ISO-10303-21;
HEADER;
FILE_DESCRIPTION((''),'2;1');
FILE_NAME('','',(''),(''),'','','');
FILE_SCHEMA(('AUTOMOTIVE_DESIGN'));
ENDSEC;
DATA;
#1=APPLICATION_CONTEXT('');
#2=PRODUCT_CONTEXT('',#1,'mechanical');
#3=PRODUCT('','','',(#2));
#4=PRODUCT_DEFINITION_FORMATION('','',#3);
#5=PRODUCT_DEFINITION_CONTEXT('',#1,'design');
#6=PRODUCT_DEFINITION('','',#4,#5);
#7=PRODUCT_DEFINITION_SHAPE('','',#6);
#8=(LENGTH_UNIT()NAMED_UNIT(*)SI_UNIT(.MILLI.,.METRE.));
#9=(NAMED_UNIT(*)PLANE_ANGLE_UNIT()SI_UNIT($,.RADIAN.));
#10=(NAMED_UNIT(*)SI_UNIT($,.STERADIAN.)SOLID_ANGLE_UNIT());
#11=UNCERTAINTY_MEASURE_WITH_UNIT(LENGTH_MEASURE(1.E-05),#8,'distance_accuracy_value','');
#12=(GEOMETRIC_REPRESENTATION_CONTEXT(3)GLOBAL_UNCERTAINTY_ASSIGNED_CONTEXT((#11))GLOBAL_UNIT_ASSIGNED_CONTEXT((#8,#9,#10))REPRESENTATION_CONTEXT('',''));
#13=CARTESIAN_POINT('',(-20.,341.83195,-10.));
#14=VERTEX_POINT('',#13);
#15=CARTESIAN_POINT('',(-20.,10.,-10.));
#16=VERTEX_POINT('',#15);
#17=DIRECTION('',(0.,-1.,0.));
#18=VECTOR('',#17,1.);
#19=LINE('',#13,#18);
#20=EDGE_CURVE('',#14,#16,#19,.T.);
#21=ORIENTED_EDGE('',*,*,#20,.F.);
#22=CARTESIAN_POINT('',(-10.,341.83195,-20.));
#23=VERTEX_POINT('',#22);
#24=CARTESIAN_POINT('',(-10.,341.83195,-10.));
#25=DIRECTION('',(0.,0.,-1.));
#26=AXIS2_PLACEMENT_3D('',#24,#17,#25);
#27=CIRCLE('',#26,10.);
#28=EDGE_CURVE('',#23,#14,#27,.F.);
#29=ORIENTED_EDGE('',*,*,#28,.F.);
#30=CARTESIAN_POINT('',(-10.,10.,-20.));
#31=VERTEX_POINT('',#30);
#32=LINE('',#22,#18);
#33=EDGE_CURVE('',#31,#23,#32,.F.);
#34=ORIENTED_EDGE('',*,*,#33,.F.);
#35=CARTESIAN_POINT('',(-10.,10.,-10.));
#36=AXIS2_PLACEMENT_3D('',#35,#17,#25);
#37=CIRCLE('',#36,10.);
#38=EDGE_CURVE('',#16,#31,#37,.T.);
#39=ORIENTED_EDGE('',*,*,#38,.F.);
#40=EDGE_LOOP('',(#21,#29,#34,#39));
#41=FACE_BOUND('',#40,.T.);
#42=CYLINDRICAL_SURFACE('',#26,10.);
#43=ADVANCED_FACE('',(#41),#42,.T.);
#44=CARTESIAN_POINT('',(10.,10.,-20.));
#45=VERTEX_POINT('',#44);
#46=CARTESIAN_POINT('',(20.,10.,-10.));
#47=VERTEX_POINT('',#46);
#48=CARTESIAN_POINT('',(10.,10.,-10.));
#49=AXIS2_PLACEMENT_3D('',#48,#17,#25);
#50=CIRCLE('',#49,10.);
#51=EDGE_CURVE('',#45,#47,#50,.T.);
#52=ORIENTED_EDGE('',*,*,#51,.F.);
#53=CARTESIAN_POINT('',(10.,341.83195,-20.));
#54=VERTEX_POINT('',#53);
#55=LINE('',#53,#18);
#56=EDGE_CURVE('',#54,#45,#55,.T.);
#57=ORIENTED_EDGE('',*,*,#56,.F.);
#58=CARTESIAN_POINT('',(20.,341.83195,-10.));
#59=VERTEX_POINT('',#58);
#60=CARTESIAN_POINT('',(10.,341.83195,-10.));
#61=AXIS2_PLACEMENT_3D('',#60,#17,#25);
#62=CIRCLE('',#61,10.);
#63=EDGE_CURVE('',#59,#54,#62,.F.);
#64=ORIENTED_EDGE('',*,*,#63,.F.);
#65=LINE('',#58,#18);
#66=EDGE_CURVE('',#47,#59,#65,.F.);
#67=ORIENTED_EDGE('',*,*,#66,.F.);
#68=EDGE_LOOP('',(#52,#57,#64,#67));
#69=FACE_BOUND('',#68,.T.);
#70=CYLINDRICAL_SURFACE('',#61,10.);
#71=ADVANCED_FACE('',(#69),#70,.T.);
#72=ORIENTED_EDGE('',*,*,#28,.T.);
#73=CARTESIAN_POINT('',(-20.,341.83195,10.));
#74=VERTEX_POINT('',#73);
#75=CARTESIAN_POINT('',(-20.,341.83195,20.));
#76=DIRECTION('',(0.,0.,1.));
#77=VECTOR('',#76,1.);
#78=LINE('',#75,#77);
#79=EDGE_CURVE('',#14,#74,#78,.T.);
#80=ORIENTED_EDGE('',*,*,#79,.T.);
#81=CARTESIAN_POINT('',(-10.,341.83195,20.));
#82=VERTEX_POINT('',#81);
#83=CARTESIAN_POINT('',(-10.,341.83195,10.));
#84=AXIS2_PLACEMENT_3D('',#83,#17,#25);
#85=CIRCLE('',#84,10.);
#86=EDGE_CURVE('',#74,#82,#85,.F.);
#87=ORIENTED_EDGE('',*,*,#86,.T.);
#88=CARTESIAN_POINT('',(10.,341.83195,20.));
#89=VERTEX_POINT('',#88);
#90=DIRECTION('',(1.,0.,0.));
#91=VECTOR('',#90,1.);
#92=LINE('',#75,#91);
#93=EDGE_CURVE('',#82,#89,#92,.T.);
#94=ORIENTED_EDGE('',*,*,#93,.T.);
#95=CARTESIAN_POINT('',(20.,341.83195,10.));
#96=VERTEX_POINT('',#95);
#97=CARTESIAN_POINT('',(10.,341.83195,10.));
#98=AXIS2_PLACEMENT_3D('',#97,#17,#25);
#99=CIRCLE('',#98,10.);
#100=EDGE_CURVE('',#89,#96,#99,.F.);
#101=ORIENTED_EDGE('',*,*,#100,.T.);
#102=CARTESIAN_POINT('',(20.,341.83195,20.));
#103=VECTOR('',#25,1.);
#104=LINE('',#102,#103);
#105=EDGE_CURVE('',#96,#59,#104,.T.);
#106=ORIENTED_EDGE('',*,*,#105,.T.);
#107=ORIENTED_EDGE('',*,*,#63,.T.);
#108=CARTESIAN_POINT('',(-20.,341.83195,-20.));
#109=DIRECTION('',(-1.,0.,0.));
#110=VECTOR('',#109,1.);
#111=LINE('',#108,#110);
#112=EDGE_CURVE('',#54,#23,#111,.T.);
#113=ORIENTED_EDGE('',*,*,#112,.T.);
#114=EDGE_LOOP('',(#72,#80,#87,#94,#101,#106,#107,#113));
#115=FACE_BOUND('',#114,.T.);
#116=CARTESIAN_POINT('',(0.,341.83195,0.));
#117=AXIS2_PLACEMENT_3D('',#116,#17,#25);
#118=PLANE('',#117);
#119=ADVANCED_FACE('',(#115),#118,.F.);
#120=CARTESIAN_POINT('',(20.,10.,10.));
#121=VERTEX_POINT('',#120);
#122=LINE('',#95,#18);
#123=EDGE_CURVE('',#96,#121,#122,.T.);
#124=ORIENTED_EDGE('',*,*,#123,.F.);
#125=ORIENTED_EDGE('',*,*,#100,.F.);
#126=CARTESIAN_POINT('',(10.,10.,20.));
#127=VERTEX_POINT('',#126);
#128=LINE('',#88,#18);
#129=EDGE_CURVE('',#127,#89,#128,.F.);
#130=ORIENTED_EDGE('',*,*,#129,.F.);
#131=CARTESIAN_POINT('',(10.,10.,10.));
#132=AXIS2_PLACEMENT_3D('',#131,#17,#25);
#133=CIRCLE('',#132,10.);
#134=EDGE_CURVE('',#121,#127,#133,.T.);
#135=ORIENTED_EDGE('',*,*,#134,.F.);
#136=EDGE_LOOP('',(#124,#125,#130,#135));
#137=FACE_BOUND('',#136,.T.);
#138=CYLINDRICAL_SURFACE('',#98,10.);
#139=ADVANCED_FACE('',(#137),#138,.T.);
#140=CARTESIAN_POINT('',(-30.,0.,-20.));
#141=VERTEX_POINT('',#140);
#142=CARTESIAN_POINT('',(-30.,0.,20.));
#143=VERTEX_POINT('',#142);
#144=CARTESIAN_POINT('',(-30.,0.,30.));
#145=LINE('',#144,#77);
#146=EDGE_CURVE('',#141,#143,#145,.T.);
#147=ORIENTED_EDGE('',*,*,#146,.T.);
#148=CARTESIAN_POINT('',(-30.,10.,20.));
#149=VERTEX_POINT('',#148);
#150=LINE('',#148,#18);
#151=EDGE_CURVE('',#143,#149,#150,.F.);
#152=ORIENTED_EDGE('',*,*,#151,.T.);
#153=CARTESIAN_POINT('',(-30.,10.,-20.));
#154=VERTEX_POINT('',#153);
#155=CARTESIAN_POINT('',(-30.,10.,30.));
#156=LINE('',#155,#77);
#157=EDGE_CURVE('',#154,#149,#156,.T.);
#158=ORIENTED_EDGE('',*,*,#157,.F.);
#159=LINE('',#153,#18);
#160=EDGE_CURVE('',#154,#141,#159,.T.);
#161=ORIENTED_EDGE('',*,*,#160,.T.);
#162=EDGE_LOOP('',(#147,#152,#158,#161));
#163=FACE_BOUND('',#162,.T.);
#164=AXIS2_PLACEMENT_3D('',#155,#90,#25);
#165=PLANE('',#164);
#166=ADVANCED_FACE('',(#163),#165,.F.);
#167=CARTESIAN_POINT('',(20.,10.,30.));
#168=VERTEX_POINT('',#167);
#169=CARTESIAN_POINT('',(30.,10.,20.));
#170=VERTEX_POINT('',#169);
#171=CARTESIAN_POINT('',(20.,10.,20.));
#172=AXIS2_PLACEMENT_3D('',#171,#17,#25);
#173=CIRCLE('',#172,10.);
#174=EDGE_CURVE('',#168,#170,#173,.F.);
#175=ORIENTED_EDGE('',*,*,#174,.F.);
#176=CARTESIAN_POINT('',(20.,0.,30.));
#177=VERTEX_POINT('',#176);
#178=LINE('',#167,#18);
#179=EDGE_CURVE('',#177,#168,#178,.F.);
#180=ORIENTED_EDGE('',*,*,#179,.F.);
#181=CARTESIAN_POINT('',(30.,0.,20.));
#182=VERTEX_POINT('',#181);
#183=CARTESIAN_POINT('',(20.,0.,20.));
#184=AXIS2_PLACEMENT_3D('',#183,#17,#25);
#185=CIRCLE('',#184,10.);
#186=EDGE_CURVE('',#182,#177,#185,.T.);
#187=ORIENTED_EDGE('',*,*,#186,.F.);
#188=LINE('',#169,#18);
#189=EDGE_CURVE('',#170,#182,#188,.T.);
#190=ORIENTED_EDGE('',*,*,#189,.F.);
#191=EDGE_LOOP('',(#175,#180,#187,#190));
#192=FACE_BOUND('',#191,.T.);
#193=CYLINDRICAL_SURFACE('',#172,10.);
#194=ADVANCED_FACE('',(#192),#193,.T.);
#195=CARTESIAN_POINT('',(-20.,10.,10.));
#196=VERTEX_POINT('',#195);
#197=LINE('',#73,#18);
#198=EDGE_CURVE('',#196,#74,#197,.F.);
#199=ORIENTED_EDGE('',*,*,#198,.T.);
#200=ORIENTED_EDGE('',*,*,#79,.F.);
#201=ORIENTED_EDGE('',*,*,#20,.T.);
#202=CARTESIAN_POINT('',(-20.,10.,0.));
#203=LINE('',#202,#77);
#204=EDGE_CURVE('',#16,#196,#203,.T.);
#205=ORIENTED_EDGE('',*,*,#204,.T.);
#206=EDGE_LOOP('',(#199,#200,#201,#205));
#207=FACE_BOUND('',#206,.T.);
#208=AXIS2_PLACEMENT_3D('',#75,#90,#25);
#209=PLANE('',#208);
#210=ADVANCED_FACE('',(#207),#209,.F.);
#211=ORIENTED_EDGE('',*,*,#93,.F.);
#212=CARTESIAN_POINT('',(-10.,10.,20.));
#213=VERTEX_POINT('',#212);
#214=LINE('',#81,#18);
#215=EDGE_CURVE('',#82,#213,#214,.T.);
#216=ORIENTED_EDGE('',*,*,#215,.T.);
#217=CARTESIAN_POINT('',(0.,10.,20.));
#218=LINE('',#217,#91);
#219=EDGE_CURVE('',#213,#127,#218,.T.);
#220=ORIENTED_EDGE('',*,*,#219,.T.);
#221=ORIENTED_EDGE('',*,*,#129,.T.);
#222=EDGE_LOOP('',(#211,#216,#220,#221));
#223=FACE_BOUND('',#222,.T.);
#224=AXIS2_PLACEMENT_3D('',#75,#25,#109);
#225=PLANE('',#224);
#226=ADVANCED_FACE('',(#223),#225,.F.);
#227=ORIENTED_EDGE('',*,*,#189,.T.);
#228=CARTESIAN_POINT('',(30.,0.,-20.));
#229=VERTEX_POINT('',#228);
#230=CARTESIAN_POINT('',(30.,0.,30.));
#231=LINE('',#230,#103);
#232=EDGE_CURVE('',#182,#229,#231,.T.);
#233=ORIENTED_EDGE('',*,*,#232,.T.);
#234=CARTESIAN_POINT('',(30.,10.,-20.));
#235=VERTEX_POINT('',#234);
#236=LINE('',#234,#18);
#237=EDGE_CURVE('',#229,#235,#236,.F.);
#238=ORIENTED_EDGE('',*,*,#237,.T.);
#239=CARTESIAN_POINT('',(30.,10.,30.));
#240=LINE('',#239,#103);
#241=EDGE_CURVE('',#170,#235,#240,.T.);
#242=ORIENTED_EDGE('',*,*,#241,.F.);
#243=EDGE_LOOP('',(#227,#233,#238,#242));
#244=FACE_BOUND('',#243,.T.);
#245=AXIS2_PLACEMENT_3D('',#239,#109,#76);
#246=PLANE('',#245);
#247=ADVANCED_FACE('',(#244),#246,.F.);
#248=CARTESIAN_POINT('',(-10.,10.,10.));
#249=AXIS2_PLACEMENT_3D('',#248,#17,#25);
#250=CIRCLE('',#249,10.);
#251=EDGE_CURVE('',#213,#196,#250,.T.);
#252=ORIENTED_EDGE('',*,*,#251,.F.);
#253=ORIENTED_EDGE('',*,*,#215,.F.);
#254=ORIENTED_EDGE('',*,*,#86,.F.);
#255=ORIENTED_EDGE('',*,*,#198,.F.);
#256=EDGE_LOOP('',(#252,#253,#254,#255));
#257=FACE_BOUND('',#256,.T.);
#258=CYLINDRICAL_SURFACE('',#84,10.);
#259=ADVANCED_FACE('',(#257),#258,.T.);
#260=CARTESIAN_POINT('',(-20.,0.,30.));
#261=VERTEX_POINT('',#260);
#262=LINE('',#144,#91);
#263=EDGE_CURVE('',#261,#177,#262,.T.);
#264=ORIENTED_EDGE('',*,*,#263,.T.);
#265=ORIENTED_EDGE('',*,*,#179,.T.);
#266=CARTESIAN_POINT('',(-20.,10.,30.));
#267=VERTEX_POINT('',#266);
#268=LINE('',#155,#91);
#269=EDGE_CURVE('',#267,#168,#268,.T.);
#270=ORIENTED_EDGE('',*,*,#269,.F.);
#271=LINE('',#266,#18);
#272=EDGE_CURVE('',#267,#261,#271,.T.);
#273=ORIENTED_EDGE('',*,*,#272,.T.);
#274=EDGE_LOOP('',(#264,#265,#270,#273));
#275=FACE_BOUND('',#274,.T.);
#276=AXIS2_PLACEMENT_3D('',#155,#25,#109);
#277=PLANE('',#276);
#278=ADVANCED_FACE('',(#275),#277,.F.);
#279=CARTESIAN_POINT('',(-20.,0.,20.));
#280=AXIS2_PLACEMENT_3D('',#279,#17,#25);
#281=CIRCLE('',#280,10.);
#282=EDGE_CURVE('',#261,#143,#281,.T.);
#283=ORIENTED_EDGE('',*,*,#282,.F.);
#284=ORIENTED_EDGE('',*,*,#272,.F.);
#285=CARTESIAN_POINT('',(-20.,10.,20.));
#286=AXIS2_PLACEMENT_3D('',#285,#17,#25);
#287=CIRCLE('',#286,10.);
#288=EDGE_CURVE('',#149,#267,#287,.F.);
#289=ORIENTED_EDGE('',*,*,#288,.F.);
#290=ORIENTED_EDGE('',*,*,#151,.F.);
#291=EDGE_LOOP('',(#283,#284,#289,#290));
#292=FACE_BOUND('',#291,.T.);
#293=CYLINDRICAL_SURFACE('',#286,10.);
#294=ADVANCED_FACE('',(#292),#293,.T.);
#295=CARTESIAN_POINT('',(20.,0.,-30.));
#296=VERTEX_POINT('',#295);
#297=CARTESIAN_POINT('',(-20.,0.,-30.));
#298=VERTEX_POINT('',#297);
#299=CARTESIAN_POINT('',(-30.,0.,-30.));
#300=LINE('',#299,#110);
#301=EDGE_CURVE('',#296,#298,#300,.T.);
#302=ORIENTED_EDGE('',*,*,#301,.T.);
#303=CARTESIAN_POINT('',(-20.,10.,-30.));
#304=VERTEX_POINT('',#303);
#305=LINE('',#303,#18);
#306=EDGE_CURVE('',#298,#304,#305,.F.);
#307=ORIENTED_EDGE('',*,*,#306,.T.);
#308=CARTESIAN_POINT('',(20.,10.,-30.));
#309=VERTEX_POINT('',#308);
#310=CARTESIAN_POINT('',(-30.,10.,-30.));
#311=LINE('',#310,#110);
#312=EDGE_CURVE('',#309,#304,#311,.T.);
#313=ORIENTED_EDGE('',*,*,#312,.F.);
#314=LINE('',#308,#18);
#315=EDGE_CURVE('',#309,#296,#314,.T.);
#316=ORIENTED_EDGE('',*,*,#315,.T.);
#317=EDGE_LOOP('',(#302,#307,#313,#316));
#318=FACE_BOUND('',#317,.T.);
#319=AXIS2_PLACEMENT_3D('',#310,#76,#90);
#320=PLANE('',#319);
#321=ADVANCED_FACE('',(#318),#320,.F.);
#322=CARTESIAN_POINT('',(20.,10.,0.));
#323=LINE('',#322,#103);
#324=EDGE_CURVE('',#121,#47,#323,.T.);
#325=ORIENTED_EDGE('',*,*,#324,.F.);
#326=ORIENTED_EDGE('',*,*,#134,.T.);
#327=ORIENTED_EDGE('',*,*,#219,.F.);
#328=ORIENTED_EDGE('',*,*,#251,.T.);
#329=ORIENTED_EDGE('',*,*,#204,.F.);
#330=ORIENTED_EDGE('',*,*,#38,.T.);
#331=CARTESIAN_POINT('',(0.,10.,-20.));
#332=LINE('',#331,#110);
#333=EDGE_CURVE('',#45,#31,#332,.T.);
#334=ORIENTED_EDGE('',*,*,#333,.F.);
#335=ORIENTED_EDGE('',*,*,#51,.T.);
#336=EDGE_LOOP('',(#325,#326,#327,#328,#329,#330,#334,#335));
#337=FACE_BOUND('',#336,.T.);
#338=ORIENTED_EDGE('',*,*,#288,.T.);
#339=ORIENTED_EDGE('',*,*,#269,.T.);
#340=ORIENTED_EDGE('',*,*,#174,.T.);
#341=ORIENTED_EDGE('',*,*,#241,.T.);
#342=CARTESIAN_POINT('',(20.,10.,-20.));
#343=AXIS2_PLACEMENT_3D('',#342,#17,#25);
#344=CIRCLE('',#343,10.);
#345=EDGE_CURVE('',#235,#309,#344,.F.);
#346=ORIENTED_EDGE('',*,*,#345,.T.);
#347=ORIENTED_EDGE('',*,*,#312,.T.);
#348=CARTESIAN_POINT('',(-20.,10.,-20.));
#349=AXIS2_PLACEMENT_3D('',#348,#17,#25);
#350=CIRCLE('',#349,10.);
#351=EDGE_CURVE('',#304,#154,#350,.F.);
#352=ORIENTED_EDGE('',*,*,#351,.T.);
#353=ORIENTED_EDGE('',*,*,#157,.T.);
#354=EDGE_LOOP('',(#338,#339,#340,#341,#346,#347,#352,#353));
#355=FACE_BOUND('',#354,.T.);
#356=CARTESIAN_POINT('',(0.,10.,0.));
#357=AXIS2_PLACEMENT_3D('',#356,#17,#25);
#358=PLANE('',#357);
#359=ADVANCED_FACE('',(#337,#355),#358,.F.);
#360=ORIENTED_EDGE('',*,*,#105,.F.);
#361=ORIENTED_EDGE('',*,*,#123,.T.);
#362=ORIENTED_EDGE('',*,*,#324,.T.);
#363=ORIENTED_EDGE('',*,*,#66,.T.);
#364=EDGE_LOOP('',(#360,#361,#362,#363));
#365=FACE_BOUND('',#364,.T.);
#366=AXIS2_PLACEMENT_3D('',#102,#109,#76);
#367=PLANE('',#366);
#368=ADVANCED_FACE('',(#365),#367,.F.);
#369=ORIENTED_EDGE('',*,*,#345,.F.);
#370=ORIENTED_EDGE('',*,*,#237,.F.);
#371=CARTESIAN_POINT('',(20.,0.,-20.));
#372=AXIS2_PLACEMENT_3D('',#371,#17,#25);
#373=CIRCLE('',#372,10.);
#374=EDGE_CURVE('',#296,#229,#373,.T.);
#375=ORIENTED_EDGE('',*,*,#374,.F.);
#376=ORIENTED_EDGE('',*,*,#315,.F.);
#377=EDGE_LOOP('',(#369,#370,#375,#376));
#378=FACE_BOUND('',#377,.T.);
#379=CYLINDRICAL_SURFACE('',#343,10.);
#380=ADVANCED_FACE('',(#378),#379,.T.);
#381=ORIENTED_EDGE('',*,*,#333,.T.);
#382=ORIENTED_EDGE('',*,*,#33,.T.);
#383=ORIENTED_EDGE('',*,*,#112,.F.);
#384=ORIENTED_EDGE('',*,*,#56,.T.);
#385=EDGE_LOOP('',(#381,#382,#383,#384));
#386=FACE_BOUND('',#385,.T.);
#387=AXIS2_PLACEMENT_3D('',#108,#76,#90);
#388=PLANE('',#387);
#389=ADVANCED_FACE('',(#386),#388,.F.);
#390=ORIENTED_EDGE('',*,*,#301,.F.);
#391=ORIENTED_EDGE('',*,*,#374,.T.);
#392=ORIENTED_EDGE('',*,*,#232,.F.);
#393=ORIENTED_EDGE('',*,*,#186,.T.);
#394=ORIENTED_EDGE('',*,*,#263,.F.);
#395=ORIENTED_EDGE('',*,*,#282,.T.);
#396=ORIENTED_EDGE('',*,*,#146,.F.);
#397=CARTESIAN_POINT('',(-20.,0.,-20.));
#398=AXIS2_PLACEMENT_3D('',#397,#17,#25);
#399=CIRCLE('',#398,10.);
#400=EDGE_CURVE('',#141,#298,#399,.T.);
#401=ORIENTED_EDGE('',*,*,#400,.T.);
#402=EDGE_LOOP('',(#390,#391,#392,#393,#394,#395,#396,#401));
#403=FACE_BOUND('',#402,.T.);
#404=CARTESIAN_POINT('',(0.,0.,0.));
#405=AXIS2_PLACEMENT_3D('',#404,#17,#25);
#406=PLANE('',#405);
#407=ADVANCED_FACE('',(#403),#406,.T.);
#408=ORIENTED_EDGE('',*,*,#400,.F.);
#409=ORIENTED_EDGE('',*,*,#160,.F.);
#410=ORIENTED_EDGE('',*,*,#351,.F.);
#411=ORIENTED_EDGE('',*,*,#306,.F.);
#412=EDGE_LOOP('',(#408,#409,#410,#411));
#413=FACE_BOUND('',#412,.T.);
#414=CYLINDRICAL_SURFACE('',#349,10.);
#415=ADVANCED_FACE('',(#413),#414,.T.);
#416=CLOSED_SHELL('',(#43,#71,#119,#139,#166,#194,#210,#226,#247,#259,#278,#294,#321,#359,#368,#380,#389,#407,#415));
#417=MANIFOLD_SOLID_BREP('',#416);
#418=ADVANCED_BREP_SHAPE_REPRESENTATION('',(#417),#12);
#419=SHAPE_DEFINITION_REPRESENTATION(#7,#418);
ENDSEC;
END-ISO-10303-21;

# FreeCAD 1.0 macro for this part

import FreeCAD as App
import Part
import Sketcher

V = App.Vector


def edges_at(feature, points):
    """Names of the edges that pass closest to the given points."""
    edges = feature.Shape.Edges
    near = lambda p: min(range(len(edges)), key=lambda i: edges[i].distToShape(Part.Vertex(*p))[0])
    return sorted({f"Edge{near(p) + 1}" for p in points})


def add_polygon(sketch, points):
    """Adds a closed chain of lines whose ends are joined by coincident constraints."""
    first, n = sketch.GeometryCount, len(points)
    for a, b in zip(points, points[1:] + points[:1]):
        sketch.addGeometry(Part.LineSegment(App.Vector(*a, 0), App.Vector(*b, 0)), False)
    for i in range(n):
        sketch.addConstraint(Sketcher.Constraint("Coincident", first + i, 2, first + (i + 1) % n, 1))

doc = App.newDocument("Part")
body = doc.addObject("PartDesign::Body", "Body")

# Sketch on XZ plane
sketch1 = doc.addObject("Sketcher::SketchObject", "Sketch")
body.addObject(sketch1)
sketch1.AttachmentSupport = (doc.XZ_Plane, [""])
sketch1.MapMode = "FlatFace"
add_polygon(sketch1, [(-30, -30), (-30, 30), (30, 30), (30, -30)])  # lines 0-3
sketch1.addConstraint([
    Sketcher.Constraint("Vertical", 0),
    Sketcher.Constraint("Horizontal", 1),
    Sketcher.Constraint("Vertical", 2),
    Sketcher.Constraint("Horizontal", 3),
    Sketcher.Constraint("Symmetric", 0, 2, 2, 2, -1, 1),
    Sketcher.Constraint("Equal", 3, 0),
    Sketcher.Constraint("DistanceX", 1, 1, 1, 2, 60.0),
])
pad1 = doc.addObject("PartDesign::Pad", "Pad")
body.addObject(pad1)
pad1.Profile = sketch1
pad1.Length = 10
pad1.Reversed = True

# Sketch on XZ plane
sketch2 = doc.addObject("Sketcher::SketchObject", "Sketch001")
body.addObject(sketch2)
sketch2.AttachmentSupport = (doc.XZ_Plane, [""])
sketch2.MapMode = "FlatFace"
add_polygon(sketch2, [(-20, -20), (-20, 20), (20, 20), (20, -20)])  # lines 0-3
sketch2.addConstraint([
    Sketcher.Constraint("Vertical", 0),
    Sketcher.Constraint("Horizontal", 1),
    Sketcher.Constraint("Vertical", 2),
    Sketcher.Constraint("Horizontal", 3),
    Sketcher.Constraint("Symmetric", 0, 2, 2, 2, -1, 1),
    Sketcher.Constraint("Equal", 3, 0),
    Sketcher.Constraint("DistanceX", 1, 1, 1, 2, 40.0),
])
pad2 = doc.addObject("PartDesign::Pad", "Pad001")
body.addObject(pad2)
pad2.Profile = sketch2
pad2.Length = 341.83195
pad2.Reversed = True
doc.recompute()

fillet = doc.addObject("PartDesign::Fillet", "Fillet")
body.addObject(fillet)
fillet.Base = (pad2, edges_at(pad2, [
    (20, 175.916, 20),
    (20, 175.916, -20),
    (-20, 175.916, -20),
    (-20, 175.916, 20),
    (30, 5, 30),
    (-30, 5, 30),
    (-30, 5, -30),
    (30, 5, -30),
]))
fillet.Radius = 10

doc.recompute()
